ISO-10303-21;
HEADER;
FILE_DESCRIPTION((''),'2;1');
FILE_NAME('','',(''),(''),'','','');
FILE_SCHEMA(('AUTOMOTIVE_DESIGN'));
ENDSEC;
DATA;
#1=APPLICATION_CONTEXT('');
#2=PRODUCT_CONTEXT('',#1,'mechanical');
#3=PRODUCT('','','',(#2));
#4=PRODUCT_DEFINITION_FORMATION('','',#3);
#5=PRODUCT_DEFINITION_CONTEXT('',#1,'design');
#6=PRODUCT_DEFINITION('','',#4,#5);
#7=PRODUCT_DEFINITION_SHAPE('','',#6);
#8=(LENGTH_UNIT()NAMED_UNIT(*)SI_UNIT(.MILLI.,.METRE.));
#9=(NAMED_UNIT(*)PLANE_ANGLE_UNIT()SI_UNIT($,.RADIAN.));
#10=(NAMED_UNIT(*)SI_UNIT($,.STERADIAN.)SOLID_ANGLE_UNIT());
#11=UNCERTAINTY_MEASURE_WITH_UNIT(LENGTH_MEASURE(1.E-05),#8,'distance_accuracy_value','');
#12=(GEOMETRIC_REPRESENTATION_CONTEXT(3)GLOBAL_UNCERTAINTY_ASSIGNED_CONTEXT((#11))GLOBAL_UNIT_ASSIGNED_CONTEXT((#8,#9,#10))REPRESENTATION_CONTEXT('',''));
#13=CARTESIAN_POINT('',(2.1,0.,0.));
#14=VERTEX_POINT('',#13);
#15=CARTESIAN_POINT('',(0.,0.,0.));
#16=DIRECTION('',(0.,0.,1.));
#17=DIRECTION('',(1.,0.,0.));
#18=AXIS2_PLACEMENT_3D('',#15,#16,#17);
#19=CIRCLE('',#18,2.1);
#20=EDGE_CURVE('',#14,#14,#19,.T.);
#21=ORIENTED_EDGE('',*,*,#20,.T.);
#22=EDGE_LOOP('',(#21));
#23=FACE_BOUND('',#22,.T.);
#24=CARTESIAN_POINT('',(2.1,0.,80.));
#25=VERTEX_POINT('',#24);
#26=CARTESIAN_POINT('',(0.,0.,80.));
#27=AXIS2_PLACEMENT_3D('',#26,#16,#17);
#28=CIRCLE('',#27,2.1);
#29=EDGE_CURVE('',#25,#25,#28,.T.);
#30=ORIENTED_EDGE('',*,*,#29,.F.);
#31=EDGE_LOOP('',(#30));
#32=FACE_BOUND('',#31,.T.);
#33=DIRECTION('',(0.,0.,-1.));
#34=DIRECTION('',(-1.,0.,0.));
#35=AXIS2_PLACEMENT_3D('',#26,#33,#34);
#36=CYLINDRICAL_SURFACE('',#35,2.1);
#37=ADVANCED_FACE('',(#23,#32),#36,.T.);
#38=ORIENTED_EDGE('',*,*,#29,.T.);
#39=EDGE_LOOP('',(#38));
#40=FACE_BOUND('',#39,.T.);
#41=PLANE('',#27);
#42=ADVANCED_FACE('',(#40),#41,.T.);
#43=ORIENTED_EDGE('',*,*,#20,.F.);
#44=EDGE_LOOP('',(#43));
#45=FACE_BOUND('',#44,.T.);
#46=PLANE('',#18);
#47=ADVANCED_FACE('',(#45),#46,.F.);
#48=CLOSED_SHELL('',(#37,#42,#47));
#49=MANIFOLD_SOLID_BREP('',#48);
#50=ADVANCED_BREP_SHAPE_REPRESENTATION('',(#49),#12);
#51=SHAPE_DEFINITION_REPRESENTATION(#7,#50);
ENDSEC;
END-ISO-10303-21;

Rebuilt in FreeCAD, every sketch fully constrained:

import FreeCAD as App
import Part
import Sketcher

V = App.Vector

doc = App.newDocument("Part")
body = doc.addObject("PartDesign::Body", "Body")

# Sketch on XY plane
sketch1 = doc.addObject("Sketcher::SketchObject", "Sketch")
body.addObject(sketch1)
sketch1.AttachmentSupport = (doc.XY_Plane, [""])
sketch1.MapMode = "FlatFace"
sketch1.addGeometry(Part.Circle(V(0, 0, 0), V(0, 0, 1), 2.1), False)
sketch1.addConstraint(Sketcher.Constraint("Coincident", 0, 3, -1, 1))
sketch1.addConstraint(Sketcher.Constraint("Diameter", 0, 4.2))
pad1 = doc.addObject("PartDesign::Pad", "Pad")
body.addObject(pad1)
pad1.Profile = sketch1
pad1.Length = 80

doc.recompute()
